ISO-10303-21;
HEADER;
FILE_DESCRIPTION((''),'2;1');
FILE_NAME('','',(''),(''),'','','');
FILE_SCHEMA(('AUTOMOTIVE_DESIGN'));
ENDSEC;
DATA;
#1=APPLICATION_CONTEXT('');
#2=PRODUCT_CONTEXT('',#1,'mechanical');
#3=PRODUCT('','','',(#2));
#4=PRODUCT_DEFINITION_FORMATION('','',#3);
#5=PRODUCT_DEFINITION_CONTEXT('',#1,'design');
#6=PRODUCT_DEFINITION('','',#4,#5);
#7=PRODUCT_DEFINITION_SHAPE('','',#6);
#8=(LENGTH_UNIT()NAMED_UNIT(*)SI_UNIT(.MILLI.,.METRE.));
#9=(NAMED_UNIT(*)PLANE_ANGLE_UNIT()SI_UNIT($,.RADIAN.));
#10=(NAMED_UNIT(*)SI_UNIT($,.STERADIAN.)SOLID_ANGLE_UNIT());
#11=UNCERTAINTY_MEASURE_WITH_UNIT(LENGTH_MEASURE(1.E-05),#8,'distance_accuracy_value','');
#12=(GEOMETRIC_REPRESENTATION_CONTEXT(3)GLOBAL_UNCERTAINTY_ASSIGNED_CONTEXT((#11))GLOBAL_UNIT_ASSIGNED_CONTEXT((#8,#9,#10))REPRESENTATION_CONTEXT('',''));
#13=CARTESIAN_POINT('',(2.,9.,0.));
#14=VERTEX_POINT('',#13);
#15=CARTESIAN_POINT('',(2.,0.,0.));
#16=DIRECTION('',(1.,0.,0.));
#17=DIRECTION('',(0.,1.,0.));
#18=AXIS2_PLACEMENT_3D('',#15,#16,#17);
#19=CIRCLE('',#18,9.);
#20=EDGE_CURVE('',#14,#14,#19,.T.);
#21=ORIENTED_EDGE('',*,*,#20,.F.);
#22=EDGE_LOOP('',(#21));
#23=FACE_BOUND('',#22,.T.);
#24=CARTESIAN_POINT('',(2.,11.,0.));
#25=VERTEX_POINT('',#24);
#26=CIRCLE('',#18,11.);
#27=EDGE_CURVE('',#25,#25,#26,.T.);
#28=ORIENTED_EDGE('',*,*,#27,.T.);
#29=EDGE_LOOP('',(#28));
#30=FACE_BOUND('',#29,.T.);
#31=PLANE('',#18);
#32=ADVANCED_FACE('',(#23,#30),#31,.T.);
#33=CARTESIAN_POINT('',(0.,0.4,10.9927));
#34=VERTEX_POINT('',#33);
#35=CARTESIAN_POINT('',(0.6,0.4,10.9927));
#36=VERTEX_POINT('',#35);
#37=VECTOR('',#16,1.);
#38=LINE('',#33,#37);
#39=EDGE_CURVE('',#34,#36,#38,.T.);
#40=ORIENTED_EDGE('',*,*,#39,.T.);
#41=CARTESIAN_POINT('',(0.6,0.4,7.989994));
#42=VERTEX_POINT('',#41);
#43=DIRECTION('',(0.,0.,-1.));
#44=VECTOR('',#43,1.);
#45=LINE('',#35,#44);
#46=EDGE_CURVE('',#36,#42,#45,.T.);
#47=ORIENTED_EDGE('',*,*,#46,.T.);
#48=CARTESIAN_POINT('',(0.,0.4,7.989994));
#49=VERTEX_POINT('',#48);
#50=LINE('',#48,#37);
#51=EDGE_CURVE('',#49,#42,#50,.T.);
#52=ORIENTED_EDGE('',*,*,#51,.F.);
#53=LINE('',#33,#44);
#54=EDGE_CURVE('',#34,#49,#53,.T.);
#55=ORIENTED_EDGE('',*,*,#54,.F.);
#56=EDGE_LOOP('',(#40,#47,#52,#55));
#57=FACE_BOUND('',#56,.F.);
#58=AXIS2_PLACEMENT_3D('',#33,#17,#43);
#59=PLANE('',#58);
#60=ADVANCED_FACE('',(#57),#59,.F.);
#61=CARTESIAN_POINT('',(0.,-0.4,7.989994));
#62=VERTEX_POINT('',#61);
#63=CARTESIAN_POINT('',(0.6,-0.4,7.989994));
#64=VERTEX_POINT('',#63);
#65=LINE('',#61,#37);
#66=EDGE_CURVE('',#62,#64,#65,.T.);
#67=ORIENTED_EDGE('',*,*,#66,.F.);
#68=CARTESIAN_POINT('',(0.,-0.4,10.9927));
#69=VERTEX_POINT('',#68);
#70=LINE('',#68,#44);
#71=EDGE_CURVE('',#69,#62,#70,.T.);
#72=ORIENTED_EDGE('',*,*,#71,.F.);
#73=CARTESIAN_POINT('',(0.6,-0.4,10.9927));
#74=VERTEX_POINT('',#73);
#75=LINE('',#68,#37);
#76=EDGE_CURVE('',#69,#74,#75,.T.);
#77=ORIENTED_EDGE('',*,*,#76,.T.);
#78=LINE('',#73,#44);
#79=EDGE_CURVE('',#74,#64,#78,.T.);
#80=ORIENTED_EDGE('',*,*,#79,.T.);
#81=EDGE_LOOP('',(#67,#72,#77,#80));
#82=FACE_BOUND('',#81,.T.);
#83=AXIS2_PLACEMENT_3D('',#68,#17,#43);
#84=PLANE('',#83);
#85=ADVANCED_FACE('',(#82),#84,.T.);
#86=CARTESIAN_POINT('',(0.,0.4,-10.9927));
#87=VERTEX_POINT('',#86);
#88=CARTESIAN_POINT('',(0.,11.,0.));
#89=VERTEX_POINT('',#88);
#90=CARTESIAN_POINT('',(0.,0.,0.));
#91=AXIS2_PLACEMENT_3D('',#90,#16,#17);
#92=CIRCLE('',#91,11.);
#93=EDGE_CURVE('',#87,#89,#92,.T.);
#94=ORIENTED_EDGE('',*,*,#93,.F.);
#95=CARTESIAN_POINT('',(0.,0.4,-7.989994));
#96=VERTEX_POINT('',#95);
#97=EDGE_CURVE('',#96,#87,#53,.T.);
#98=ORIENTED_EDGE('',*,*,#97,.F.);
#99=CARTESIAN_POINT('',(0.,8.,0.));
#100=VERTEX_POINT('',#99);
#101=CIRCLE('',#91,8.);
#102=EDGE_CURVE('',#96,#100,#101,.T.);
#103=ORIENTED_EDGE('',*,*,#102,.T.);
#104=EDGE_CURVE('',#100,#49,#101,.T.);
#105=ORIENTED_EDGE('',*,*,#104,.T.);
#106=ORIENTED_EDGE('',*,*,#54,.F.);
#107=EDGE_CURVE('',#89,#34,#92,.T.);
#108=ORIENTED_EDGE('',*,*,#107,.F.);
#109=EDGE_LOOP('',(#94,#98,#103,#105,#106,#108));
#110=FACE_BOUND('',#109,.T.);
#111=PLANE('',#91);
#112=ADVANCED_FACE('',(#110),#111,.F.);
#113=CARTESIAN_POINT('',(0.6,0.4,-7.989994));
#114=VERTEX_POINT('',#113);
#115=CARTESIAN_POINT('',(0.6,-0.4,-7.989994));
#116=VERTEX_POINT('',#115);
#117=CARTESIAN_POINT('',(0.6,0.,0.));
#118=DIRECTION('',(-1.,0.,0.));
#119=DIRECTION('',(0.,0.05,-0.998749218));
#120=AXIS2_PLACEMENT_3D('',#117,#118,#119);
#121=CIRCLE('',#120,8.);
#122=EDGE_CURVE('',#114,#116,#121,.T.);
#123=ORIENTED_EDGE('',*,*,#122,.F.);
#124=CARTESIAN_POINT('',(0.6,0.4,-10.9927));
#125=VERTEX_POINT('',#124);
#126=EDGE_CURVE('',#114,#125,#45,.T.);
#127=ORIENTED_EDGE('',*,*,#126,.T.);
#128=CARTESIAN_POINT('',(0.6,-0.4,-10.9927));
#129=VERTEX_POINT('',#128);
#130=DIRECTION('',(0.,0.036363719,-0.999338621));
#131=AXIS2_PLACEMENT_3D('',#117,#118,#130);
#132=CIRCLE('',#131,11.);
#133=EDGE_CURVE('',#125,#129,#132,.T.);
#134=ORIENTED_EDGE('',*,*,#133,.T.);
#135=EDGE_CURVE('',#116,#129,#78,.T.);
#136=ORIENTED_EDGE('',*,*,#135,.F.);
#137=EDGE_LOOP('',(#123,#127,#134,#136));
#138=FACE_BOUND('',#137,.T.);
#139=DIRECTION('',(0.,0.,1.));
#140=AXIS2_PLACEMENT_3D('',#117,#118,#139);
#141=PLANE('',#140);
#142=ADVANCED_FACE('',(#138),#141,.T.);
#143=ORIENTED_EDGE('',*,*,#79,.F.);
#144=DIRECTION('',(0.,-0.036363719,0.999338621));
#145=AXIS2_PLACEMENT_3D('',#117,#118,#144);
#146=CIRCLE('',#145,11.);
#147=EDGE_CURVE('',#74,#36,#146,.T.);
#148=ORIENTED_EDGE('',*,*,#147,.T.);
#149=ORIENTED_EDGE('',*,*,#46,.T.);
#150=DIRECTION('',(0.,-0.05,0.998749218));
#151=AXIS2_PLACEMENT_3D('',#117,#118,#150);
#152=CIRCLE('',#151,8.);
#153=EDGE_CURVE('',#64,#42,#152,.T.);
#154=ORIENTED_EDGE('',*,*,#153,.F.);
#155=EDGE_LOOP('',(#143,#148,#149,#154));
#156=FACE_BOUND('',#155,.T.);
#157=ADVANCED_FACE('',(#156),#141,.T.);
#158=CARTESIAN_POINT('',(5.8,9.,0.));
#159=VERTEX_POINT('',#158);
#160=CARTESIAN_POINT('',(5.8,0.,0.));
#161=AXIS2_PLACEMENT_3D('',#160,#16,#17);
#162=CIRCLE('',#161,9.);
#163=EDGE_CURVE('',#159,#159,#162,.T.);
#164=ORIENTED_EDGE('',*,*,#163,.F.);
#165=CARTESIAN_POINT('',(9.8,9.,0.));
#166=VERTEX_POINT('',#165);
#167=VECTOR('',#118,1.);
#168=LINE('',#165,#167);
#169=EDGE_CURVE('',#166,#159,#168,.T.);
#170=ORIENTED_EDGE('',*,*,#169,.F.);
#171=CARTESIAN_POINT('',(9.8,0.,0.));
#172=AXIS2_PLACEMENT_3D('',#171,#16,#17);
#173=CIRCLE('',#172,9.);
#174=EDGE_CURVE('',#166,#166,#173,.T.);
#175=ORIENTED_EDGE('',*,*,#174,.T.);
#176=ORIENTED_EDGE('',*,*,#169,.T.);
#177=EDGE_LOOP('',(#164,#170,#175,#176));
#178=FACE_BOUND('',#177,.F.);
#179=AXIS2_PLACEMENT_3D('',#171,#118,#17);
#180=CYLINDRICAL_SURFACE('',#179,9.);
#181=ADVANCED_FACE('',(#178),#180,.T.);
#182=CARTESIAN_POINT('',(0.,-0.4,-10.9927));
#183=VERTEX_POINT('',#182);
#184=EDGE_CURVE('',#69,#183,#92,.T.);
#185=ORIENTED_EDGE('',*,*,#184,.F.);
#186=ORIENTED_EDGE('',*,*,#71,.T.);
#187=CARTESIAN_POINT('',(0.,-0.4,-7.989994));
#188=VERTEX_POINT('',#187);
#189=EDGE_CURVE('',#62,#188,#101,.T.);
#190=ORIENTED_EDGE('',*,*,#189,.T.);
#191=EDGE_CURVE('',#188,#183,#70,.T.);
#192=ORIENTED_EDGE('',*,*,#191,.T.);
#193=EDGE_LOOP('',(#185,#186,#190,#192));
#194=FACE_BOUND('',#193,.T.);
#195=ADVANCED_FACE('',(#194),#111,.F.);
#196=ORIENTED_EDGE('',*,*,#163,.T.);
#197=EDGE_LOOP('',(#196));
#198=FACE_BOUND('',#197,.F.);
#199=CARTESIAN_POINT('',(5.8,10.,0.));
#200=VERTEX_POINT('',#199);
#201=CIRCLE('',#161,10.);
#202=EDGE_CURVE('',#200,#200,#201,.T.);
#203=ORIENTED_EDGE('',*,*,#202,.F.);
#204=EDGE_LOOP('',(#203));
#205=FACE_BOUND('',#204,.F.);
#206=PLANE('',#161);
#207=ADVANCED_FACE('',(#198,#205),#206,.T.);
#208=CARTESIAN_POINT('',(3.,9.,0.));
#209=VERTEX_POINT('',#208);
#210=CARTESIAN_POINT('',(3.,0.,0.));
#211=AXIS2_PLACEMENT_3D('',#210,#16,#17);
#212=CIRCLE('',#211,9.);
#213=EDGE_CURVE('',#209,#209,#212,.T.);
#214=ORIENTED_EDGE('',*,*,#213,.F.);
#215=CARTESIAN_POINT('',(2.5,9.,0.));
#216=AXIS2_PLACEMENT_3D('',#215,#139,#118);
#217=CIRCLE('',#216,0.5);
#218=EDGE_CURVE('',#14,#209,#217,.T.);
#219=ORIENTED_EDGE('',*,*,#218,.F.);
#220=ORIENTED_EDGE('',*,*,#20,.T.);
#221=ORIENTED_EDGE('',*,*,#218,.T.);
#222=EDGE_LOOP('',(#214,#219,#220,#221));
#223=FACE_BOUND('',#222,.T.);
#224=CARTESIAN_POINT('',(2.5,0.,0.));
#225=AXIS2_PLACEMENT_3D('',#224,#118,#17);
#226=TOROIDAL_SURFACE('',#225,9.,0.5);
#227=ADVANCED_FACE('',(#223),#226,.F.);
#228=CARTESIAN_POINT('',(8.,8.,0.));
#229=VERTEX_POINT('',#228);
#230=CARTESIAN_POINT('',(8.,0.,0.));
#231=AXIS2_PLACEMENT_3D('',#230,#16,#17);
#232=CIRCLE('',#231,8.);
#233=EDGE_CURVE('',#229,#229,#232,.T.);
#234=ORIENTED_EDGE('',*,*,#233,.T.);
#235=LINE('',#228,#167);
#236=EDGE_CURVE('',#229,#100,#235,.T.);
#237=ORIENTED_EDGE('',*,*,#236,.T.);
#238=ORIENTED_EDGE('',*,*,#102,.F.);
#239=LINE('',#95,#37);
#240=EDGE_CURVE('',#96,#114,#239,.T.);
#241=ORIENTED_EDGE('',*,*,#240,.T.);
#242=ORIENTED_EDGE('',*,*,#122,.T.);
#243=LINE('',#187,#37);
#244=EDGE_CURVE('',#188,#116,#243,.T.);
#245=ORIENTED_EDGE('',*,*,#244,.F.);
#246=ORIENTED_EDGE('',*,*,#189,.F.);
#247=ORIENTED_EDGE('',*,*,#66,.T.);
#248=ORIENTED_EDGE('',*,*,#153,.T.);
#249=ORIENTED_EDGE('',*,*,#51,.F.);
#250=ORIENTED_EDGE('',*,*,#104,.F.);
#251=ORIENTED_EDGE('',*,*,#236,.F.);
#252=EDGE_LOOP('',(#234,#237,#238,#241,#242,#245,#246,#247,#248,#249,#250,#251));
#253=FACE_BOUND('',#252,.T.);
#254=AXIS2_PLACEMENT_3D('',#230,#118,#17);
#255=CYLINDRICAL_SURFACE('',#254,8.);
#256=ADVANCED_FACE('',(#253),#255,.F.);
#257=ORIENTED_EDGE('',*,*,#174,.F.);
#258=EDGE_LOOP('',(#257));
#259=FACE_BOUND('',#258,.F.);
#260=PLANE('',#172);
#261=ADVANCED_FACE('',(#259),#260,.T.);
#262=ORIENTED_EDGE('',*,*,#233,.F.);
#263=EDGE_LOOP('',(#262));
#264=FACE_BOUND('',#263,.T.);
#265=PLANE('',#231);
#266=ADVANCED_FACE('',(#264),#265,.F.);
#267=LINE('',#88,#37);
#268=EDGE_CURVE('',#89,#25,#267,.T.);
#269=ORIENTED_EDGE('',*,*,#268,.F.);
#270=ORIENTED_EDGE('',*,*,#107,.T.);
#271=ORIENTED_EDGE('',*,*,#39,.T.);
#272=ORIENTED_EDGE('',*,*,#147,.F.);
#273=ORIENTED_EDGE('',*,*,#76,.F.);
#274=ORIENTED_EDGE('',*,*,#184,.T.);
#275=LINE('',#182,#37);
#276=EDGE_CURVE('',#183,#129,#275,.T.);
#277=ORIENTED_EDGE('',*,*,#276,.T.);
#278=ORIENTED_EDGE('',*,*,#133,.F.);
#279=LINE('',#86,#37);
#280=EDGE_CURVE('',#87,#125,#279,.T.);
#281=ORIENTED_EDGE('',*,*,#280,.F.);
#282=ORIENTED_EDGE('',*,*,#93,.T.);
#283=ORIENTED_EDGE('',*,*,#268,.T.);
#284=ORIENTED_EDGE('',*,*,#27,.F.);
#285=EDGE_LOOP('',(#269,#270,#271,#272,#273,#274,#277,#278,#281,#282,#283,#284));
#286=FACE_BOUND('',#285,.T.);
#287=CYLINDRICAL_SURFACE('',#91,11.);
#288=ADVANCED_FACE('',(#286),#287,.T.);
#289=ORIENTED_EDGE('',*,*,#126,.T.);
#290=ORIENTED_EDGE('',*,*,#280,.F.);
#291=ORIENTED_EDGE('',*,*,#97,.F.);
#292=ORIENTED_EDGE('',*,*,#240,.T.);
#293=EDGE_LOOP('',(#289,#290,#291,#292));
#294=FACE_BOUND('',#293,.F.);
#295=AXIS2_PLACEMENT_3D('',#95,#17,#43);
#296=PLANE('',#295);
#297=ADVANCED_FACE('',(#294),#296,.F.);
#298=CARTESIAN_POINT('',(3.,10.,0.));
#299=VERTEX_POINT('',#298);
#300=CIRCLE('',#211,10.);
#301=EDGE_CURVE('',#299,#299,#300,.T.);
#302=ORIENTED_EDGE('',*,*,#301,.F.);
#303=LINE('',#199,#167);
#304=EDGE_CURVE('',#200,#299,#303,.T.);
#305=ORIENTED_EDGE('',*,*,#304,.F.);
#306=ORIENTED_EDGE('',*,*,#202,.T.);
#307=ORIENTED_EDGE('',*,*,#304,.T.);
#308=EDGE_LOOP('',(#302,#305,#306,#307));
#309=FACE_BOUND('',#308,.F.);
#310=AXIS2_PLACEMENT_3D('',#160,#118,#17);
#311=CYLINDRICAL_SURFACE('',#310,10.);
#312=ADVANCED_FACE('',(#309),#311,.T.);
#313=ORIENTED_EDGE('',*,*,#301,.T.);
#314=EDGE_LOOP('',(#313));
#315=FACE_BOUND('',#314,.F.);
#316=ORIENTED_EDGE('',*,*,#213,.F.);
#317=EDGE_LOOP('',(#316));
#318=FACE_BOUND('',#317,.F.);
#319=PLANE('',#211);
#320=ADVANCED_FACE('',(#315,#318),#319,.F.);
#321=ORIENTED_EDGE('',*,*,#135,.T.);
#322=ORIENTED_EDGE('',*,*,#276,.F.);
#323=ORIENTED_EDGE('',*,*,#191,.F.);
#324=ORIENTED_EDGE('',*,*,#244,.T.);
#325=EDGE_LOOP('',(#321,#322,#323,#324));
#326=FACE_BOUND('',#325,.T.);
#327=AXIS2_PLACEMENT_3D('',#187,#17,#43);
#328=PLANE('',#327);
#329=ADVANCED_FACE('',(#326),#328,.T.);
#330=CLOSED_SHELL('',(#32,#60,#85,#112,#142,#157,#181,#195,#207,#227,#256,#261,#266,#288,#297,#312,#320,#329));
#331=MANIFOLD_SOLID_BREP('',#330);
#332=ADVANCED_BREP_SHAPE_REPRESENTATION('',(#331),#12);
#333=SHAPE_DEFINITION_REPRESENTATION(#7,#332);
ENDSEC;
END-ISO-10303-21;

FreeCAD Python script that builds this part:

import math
import FreeCAD as App
import Part
import Sketcher

doc = App.newDocument("Part")
params = doc.addObject("Spreadsheet::Sheet", "Params")
for row, (alias, value) in enumerate([
    ("sketch1_radius", "0.5 mm"),
    ("sketch1_width", "4 mm"),
    ("sketch1_width2", "2 mm"),
    ("sketch1_width3", "8 mm"),
    ("sketch1_height", "9 mm"),
    ("revolution_angle", "360 deg"),
    ("sketch2_radius", "11 mm"),
    ("sketch2_radius2", "8 mm"),
    ("pocket1_length", "0.6 mm"),
], start=1):
    params.set(f"A{row}", alias)
    params.set(f"B{row}", "=" + value)
    params.setAlias(f"B{row}", alias)

body = doc.addObject("PartDesign::Body", "Body")

# Sketch on XY plane
sketch1 = body.newObject("Sketcher::SketchObject", "Sketch")
sketch1.AttachmentSupport = (doc.getObject("XY_Plane"), [""])
sketch1.MapMode = "FlatFace"
sketch1.addGeometry(Part.LineSegment(App.Vector(8, 8, 0), App.Vector(8, 0, 0)), False)
sketch1.addGeometry(Part.LineSegment(App.Vector(8, 0, 0), App.Vector(9.8, 0, 0)), False)
sketch1.addGeometry(Part.LineSegment(App.Vector(9.8, 0, 0), App.Vector(9.8, 9, 0)), False)
sketch1.addGeometry(Part.LineSegment(App.Vector(9.8, 9, 0), App.Vector(5.8, 9, 0)), False)
sketch1.addGeometry(Part.LineSegment(App.Vector(5.8, 9, 0), App.Vector(5.8, 10, 0)), False)
sketch1.addGeometry(Part.LineSegment(App.Vector(5.8, 10, 0), App.Vector(3, 10, 0)), False)
sketch1.addGeometry(Part.LineSegment(App.Vector(3, 10, 0), App.Vector(3, 9, 0)), False)
sketch1.addGeometry(Part.ArcOfCircle(Part.Circle(App.Vector(2.5, 9, 0), App.Vector(0, 0, 1), 0.5), math.radians(180), math.radians(360)), False)
sketch1.addGeometry(Part.LineSegment(App.Vector(2, 9, 0), App.Vector(2, 11, 0)), False)
sketch1.addGeometry(Part.LineSegment(App.Vector(2, 11, 0), App.Vector(0, 11, 0)), False)
sketch1.addGeometry(Part.LineSegment(App.Vector(0, 11, 0), App.Vector(0, 8, 0)), False)
sketch1.addGeometry(Part.LineSegment(App.Vector(0, 8, 0), App.Vector(8, 8, 0)), False)
sketch1.addConstraint(Sketcher.Constraint("Coincident", 0, 2, 1, 1))
sketch1.addConstraint(Sketcher.Constraint("Coincident", 1, 2, 2, 1))
sketch1.addConstraint(Sketcher.Constraint("Coincident", 2, 2, 3, 1))
sketch1.addConstraint(Sketcher.Constraint("Coincident", 3, 2, 4, 1))
sketch1.addConstraint(Sketcher.Constraint("Coincident", 4, 2, 5, 1))
sketch1.addConstraint(Sketcher.Constraint("Coincident", 5, 2, 6, 1))
sketch1.addConstraint(Sketcher.Constraint("Tangent", 6, 2, 7, 2))
sketch1.addConstraint(Sketcher.Constraint("Tangent", 7, 1, 8, 1))
sketch1.addConstraint(Sketcher.Constraint("Coincident", 8, 2, 9, 1))
sketch1.addConstraint(Sketcher.Constraint("Coincident", 9, 2, 10, 1))
sketch1.addConstraint(Sketcher.Constraint("Coincident", 10, 2, 11, 1))
sketch1.addConstraint(Sketcher.Constraint("Coincident", 11, 2, 0, 1))
sketch1.addConstraint(Sketcher.Constraint("Vertical", 0))
sketch1.addConstraint(Sketcher.Constraint("Horizontal", 1))
sketch1.addConstraint(Sketcher.Constraint("Vertical", 2))
sketch1.addConstraint(Sketcher.Constraint("Horizontal", 3))
sketch1.addConstraint(Sketcher.Constraint("Vertical", 4))
sketch1.addConstraint(Sketcher.Constraint("Horizontal", 5))
sketch1.addConstraint(Sketcher.Constraint("Vertical", 6))
sketch1.addConstraint(Sketcher.Constraint("Vertical", 8))
sketch1.addConstraint(Sketcher.Constraint("Horizontal", 9))
sketch1.addConstraint(Sketcher.Constraint("Vertical", 10))
sketch1.addConstraint(Sketcher.Constraint("Horizontal", 11))
sketch1.addConstraint(Sketcher.Constraint("PointOnObject", 0, 2, -1))
sketch1.addConstraint(Sketcher.Constraint("PointOnObject", 9, 2, -2))
sketch1.addConstraint(Sketcher.Constraint("Horizontal", 7, 3, 2, 2))
sketch1.addConstraint(Sketcher.Constraint("Equal", 11, 0))
sketch1.addConstraint(Sketcher.Constraint("Equal", 9, 8))
sketch1.addConstraint(Sketcher.Constraint("Radius", 7, 0.5))
sketch1.addConstraint(Sketcher.Constraint("DistanceX", 3, 2, 3, 1, 4.0))
sketch1.addConstraint(Sketcher.Constraint("DistanceX", 9, 2, 9, 1, 2.0))
sketch1.addConstraint(Sketcher.Constraint("DistanceX", 11, 1, 11, 2, 8.0))
sketch1.addConstraint(Sketcher.Constraint("DistanceY", 2, 1, 2, 2, 9.0))
sketch1.addConstraint(Sketcher.Constraint("DistanceY", -1, 1, 4, 2, 10.0))
sketch1.addConstraint(Sketcher.Constraint("DistanceX", -1, 1, 1, 2, 9.8))
sketch1.setExpression("Constraints[28]", "Params.sketch1_radius")
sketch1.setExpression("Constraints[29]", "Params.sketch1_width")
sketch1.setExpression("Constraints[30]", "Params.sketch1_width2")
sketch1.setExpression("Constraints[31]", "Params.sketch1_width3")
sketch1.setExpression("Constraints[32]", "Params.sketch1_height")
revolution = body.newObject("PartDesign::Revolution", "Revolution")
revolution.Profile = sketch1
revolution.ReferenceAxis = (sketch1, ["H_Axis"])
revolution.setExpression("Angle", "Params.revolution_angle")

# Sketch on YZ plane
sketch2 = body.newObject("Sketcher::SketchObject", "Sketch001")
sketch2.AttachmentSupport = (doc.getObject("YZ_Plane"), [""])
sketch2.MapMode = "FlatFace"
sketch2.addGeometry(Part.ArcOfCircle(Part.Circle(App.Vector(0, 0, 0), App.Vector(0, 0, 1), 11), math.radians(87.92), math.radians(92.08)), False)
sketch2.addGeometry(Part.LineSegment(App.Vector(0.4, 11, 0), App.Vector(0.4, 8, 0)), False)
sketch2.addGeometry(Part.ArcOfCircle(Part.Circle(App.Vector(0, 0, 0), App.Vector(0, 0, 1), 8), math.radians(87.13), math.radians(92.87)), False)
sketch2.addGeometry(Part.LineSegment(App.Vector(-0.4, 8, 0), App.Vector(-0.4, 11, 0)), False)
sketch2.addGeometry(Part.ArcOfCircle(Part.Circle(App.Vector(0, 0, 0), App.Vector(0, 0, 1), 11), math.radians(-92.08), math.radians(-87.92)), False)
sketch2.addGeometry(Part.LineSegment(App.Vector(-0.4, -11, 0), App.Vector(-0.4, -8, 0)), False)
sketch2.addGeometry(Part.ArcOfCircle(Part.Circle(App.Vector(0, 0, 0), App.Vector(0, 0, 1), 8), math.radians(-92.87), math.radians(-87.13)), False)
sketch2.addGeometry(Part.LineSegment(App.Vector(0.4, -8, 0), App.Vector(0.4, -11, 0)), False)
sketch2.addConstraint(Sketcher.Constraint("Coincident", 0, 1, 1, 1))
sketch2.addConstraint(Sketcher.Constraint("Coincident", 1, 2, 2, 1))
sketch2.addConstraint(Sketcher.Constraint("Coincident", 2, 2, 3, 1))
sketch2.addConstraint(Sketcher.Constraint("Coincident", 3, 2, 0, 2))
sketch2.addConstraint(Sketcher.Constraint("Coincident", 4, 1, 5, 1))
sketch2.addConstraint(Sketcher.Constraint("Coincident", 5, 2, 6, 1))
sketch2.addConstraint(Sketcher.Constraint("Coincident", 6, 2, 7, 1))
sketch2.addConstraint(Sketcher.Constraint("Coincident", 7, 2, 4, 2))
sketch2.addConstraint(Sketcher.Constraint("Vertical", 1))
sketch2.addConstraint(Sketcher.Constraint("Vertical", 3))
sketch2.addConstraint(Sketcher.Constraint("Vertical", 5))
sketch2.addConstraint(Sketcher.Constraint("Vertical", 7))
sketch2.addConstraint(Sketcher.Constraint("Coincident", 0, 3, -1, 1))
sketch2.addConstraint(Sketcher.Constraint("Coincident", 2, 3, -1, 1))
sketch2.addConstraint(Sketcher.Constraint("Coincident", 4, 3, -1, 1))
sketch2.addConstraint(Sketcher.Constraint("Coincident", 6, 3, -1, 1))
sketch2.addConstraint(Sketcher.Constraint("Equal", 0, 4))
sketch2.addConstraint(Sketcher.Constraint("Equal", 2, 6))
sketch2.addConstraint(Sketcher.Constraint("Horizontal", 1, 2, 2, 2))
sketch2.addConstraint(Sketcher.Constraint("Horizontal", 5, 2, 6, 2))
sketch2.addConstraint(Sketcher.Constraint("Vertical", 3, 2, 4, 1))
sketch2.addConstraint(Sketcher.Constraint("Radius", 0, 11.0))
sketch2.addConstraint(Sketcher.Constraint("Radius", 2, 8.0))
sketch2.addConstraint(Sketcher.Constraint("DistanceX", 2, 2, 1, 2, 0.8))
sketch2.setExpression("Constraints[21]", "Params.sketch2_radius")
sketch2.setExpression("Constraints[22]", "Params.sketch2_radius2")
pocket1 = body.newObject("PartDesign::Pocket", "Pocket")
pocket1.Profile = sketch2
pocket1.setExpression("Length", "Params.pocket1_length")
pocket1.Reversed = True

doc.recompute()
